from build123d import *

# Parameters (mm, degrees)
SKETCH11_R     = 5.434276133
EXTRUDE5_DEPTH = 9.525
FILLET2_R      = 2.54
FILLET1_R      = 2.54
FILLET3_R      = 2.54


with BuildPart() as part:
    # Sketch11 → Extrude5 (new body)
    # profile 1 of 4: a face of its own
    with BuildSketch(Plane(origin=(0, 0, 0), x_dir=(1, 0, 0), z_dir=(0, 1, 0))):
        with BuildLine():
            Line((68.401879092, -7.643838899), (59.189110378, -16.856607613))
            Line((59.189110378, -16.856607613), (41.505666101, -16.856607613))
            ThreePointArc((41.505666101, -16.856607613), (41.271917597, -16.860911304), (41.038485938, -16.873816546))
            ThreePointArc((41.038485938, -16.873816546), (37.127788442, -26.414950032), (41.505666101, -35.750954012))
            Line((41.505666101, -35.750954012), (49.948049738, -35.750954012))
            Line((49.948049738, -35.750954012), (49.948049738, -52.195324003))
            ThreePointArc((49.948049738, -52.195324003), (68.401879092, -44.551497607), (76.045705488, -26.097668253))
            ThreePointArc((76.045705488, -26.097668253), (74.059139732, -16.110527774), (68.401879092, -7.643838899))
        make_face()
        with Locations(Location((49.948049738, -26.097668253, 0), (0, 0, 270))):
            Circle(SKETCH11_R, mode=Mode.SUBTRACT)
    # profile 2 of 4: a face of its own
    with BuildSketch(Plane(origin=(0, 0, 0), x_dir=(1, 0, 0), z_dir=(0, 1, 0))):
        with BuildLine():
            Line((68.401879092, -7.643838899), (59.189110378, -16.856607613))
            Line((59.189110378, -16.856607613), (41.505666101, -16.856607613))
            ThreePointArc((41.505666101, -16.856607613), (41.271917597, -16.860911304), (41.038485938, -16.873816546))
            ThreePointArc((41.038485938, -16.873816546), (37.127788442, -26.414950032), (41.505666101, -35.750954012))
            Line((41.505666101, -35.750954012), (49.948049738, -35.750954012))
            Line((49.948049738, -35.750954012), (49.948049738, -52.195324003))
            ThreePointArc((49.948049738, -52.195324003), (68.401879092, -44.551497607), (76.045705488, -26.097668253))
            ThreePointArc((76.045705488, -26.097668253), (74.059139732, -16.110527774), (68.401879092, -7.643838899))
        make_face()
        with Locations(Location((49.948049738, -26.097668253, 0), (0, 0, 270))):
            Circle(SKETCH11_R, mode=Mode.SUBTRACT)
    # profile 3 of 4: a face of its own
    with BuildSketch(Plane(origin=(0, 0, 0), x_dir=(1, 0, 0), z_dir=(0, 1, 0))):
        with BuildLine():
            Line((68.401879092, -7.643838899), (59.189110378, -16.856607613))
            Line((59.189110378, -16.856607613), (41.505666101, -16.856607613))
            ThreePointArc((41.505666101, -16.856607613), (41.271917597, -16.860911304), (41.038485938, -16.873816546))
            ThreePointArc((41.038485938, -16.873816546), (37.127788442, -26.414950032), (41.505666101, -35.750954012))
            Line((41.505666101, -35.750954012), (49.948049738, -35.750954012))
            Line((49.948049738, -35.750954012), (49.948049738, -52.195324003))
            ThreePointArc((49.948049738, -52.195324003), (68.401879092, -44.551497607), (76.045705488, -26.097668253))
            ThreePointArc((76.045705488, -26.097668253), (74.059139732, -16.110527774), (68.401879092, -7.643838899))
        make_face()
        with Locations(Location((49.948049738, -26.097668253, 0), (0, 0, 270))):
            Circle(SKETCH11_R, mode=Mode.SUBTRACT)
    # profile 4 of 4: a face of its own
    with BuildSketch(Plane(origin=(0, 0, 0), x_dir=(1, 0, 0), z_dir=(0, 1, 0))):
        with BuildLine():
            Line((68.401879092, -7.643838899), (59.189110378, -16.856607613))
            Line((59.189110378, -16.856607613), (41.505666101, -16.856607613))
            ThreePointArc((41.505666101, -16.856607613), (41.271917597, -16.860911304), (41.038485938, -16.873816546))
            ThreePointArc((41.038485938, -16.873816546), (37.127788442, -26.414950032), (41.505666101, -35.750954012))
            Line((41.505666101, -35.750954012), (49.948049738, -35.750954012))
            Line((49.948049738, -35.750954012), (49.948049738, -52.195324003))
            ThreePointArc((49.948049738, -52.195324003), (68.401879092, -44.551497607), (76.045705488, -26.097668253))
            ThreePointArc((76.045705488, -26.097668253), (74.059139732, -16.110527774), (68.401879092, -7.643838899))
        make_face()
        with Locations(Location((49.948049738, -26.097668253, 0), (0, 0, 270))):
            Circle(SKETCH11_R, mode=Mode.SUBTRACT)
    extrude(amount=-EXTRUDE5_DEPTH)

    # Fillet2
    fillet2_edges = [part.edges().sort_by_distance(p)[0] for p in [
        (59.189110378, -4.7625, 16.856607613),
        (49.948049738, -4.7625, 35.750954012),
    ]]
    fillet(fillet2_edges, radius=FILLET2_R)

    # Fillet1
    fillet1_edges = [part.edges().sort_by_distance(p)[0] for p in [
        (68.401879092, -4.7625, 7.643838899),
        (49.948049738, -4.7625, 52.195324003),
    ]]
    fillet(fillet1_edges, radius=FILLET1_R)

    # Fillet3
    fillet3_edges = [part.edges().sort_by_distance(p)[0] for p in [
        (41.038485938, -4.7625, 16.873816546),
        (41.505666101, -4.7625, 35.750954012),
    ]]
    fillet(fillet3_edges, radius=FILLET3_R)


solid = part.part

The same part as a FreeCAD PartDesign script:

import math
import FreeCAD as App
import Part
import Sketcher
Q = App.Units.Quantity


def edges_at(feature, points):
    """Names of the edges that pass closest to the given points."""
    edges = feature.Shape.Edges
    near = lambda p: min(range(len(edges)), key=lambda i: edges[i].distToShape(Part.Vertex(*p))[0])
    return sorted({f"Edge{near(p) + 1}" for p in points})

doc = App.newDocument("Part")
body = doc.addObject("PartDesign::Body", "Body")

# Sketch on XZ plane
sketch1 = body.newObject("Sketcher::SketchObject", "Sketch")
sketch1.AttachmentSupport = (doc.getObject("XZ_Plane"), [""])
sketch1.MapMode = "FlatFace"
sketch1.addGeometry([
    Part.LineSegment(App.Vector(68.401879, 7.643839, 0), App.Vector(59.18911, 16.856608, 0)),  # 0
    Part.LineSegment(App.Vector(59.18911, 16.856608, 0), App.Vector(41.505666, 16.856608, 0)),  # 1
    Part.ArcOfCircle(Part.Circle(App.Vector(41.505666, 23.206607, 0), App.Vector(0, 0, 1), 6.349999), math.radians(-94.219159), math.radians(-90)),  # 2
    Part.ArcOfCircle(Part.Circle(App.Vector(49.94805, 26.097668, 0), App.Vector(0, 0, 1), 12.824187), math.radians(131.171664), math.radians(225.99295)),  # 3
    Part.LineSegment(App.Vector(41.505666, 35.750954, 0), App.Vector(49.94805, 35.750954, 0)),  # 4
    Part.LineSegment(App.Vector(49.94805, 35.750954, 0), App.Vector(49.94805, 52.195324, 0)),  # 5
    Part.ArcOfCircle(Part.Circle(App.Vector(49.94805, 26.097668, 0), App.Vector(0, 0, 1), 26.097656), math.radians(0), math.radians(90)),  # 6
    Part.ArcOfCircle(Part.Circle(App.Vector(49.94805, 26.097668, 0), App.Vector(0, 0, 1), 26.097656), math.radians(-45), math.radians(0)),  # 7
    Part.Circle(App.Vector(49.94805, 26.097668, 0), App.Vector(0, 0, 1), 5.434276),  # 8
], False)
sketch1.addConstraint([
    Sketcher.Constraint("Coincident", 0, 2, 1, 1),
    Sketcher.Constraint("Tangent", 1, 2, 2, 2),
    Sketcher.Constraint("Coincident", 2, 1, 3, 2),
    Sketcher.Constraint("Coincident", 3, 1, 4, 1),
    Sketcher.Constraint("Coincident", 4, 2, 5, 1),
    Sketcher.Constraint("Coincident", 5, 2, 6, 2),
    Sketcher.Constraint("Tangent", 6, 1, 7, 2),
    Sketcher.Constraint("Coincident", 7, 1, 0, 1),
    Sketcher.Constraint("Horizontal", 1),
    Sketcher.Constraint("Horizontal", 4),
    Sketcher.Constraint("Vertical", 5),
    Sketcher.Constraint("Coincident", 6, 3, 3, 3),
    Sketcher.Constraint("Coincident", 8, 3, 3, 3),
    Sketcher.Constraint("Equal", 6, 7),
    Sketcher.Constraint("Horizontal", 8, 3, 6, 1),
    Sketcher.Constraint("Vertical", 1, 2, 3, 1),
    Sketcher.Constraint("Vertical", 8, 3, 4, 2),
    Sketcher.Constraint("Radius", 2, Q("0.25 in")),
    Sketcher.Constraint("Angle", 0, Q("135 deg")),
    Sketcher.Constraint("Diameter", 8, 10.868552),
    Sketcher.Constraint("Radius", 3, 12.824187),
    Sketcher.Constraint("Radius", 6, 26.097656),
    Sketcher.Constraint("DistanceY", 5, 1, 5, 2, 16.44437),
    Sketcher.Constraint("DistanceX", 1, 2, 1, 1, 17.683444),
    Sketcher.Constraint("DistanceX", -1, 1, 3, 3, 49.94805),
    Sketcher.Constraint("DistanceY", -1, 1, 3, 3, 26.097668),
    Sketcher.Constraint("DistanceX", -1, 1, 7, 1, 68.401879),
])
pad1 = body.newObject("PartDesign::Pad", "Pad")
pad1.Profile = sketch1
pad1.Length = Q("0.375 in")
doc.recompute()

fillet = body.newObject("PartDesign::Fillet", "Fillet")
fillet.Base = (pad1, edges_at(pad1, [(59.189, -4.763, 16.857), (49.948, -4.763, 35.751)]))
fillet.Radius = Q("0.1 in")
doc.recompute()

fillet2 = body.newObject("PartDesign::Fillet", "Fillet001")
fillet2.Base = (fillet, edges_at(fillet, [(68.402, -4.763, 7.644), (49.948, -4.763, 52.195)]))
fillet2.Radius = Q("0.1 in")
doc.recompute()

fillet3 = body.newObject("PartDesign::Fillet", "Fillet002")
fillet3.Base = (fillet2, edges_at(fillet2, [(41.038, -4.763, 16.874), (41.506, -4.763, 35.751)]))
fillet3.Radius = Q("0.1 in")

doc.recompute()
